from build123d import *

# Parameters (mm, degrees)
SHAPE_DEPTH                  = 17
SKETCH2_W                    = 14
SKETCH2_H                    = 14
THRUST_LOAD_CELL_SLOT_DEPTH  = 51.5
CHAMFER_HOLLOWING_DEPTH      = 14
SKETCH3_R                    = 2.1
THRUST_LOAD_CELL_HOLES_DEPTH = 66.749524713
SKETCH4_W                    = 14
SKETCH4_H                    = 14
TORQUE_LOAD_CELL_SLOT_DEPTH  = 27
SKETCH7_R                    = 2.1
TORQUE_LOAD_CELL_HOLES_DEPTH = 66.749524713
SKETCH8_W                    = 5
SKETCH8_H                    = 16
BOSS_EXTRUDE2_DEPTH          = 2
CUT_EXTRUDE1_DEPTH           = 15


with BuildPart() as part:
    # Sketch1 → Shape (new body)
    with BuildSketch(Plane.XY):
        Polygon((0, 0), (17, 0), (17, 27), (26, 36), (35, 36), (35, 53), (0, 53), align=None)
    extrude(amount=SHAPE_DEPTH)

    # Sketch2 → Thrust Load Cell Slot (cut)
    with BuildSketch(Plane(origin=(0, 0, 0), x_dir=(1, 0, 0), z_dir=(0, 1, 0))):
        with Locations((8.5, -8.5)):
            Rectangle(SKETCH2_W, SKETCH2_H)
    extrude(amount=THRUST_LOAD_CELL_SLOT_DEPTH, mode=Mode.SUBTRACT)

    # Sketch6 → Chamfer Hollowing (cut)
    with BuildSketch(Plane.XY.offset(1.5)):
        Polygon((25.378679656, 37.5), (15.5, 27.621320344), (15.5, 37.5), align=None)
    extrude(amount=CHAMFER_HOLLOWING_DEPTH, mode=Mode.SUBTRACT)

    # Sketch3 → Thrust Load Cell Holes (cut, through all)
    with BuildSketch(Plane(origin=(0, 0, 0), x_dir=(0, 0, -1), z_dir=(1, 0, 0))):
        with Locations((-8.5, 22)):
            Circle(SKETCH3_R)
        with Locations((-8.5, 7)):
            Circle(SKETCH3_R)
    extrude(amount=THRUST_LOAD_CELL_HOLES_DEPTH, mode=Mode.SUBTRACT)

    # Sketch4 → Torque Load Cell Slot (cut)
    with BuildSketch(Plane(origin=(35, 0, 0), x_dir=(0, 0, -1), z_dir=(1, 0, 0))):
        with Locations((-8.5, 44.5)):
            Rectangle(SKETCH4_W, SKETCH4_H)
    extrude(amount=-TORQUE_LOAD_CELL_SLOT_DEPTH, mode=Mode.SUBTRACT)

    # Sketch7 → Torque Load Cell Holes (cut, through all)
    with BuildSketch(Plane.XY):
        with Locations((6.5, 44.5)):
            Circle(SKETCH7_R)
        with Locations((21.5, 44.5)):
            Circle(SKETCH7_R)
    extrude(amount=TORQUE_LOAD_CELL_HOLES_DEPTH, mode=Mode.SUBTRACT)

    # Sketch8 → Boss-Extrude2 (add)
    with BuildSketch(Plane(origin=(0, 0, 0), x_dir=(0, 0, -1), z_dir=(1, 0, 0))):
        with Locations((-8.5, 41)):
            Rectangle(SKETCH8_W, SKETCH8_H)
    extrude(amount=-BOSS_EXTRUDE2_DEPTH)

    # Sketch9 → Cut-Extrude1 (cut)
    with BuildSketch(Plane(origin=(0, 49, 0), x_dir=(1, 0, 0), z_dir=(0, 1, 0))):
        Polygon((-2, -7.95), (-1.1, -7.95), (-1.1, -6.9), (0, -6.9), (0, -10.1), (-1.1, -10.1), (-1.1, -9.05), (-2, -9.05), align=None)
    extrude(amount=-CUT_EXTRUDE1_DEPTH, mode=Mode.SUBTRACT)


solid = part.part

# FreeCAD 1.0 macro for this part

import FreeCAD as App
import Part
import Sketcher
from FreeCAD import Vector
Q = App.Units.Quantity


def add_polygon(sketch, points):
    """Adds a closed chain of lines whose ends are joined by coincident constraints."""
    first, n = sketch.GeometryCount, len(points)
    for a, b in zip(points, points[1:] + points[:1]):
        sketch.addGeometry(Part.LineSegment(App.Vector(*a, 0), App.Vector(*b, 0)), False)
    for i in range(n):
        sketch.addConstraint(Sketcher.Constraint("Coincident", first + i, 2, first + (i + 1) % n, 1))

doc = App.newDocument("Part")
params = doc.addObject("Spreadsheet::Sheet", "Params")
for row, (alias, value) in enumerate([
    ("sketch1_width", "17 mm"),
    ("sketch1_width2", "9 mm"),
    ("sketch1_width3", "35 mm"),
    ("sketch1_height", "27 mm"),
    ("sketch1_height2", "53 mm"),
    ("pad1_length", "17 mm"),
    ("sketch2_width", "14 mm"),
    ("pocket1_length", "51.5 mm"),
    ("pocket2_length", "14 mm"),
    ("sketch4_diameter", "4.2 mm"),
    ("sketch5_width", "14 mm"),
    ("pocket4_length", "27 mm"),
    ("sketch6_diameter", "4.2 mm"),
    ("sketch7_width", "16 mm"),
    ("sketch7_height", "5 mm"),
    ("pad2_length", "2 mm"),
    ("sketch8_width", "0.9 mm"),
    ("sketch8_width2", "1.1 mm"),
    ("sketch8_height", "3.2 mm"),
    ("pocket6_length", "15 mm"),
], start=1):
    params.set(f"A{row}", alias)
    params.set(f"B{row}", "=" + value)
    params.setAlias(f"B{row}", alias)

body = doc.addObject("PartDesign::Body", "Body")

# Sketch on XY plane
sketch1 = doc.addObject("Sketcher::SketchObject", "Sketch")
body.addObject(sketch1)
sketch1.AttachmentSupport = (doc.XY_Plane, [""])
sketch1.MapMode = "FlatFace"
add_polygon(sketch1, [(0, 0), (17, 0), (17, 27), (26, 36), (35, 36), (35, 53), (0, 53)])  # lines 0-6
sketch1.addConstraint([
    Sketcher.Constraint("Horizontal", 0),
    Sketcher.Constraint("Vertical", 1),
    Sketcher.Constraint("Horizontal", 3),
    Sketcher.Constraint("Vertical", 4),
    Sketcher.Constraint("Horizontal", 5),
    Sketcher.Constraint("Vertical", 6),
    Sketcher.Constraint("Coincident", 6, 2, -1, 1),
    Sketcher.Constraint("Equal", 0, 4),
    Sketcher.Constraint("DistanceX", 0, 1, 0, 2, Q("17 mm")),
    Sketcher.Constraint("DistanceX", 3, 1, 3, 2, Q("9 mm")),
    Sketcher.Constraint("DistanceX", 5, 2, 5, 1, Q("35 mm")),
    Sketcher.Constraint("DistanceY", 1, 1, 1, 2, Q("27 mm")),
    Sketcher.Constraint("DistanceY", 6, 2, 6, 1, Q("53 mm")),
])
sketch1.setExpression("Constraints[15]", "Params.sketch1_width")
sketch1.setExpression("Constraints[16]", "Params.sketch1_width2")
sketch1.setExpression("Constraints[17]", "Params.sketch1_width3")
sketch1.setExpression("Constraints[18]", "Params.sketch1_height")
sketch1.setExpression("Constraints[19]", "Params.sketch1_height2")
pad1 = doc.addObject("PartDesign::Pad", "Pad")
body.addObject(pad1)
pad1.Profile = sketch1
pad1.setExpression("Length", "Params.pad1_length")

# Sketch on XZ plane
sketch2 = doc.addObject("Sketcher::SketchObject", "Sketch001")
body.addObject(sketch2)
sketch2.AttachmentSupport = (doc.XZ_Plane, [""])
sketch2.MapMode = "FlatFace"
add_polygon(sketch2, [(2, 2), (2, 16), (16, 16), (16, 2)])  # lines 0-3
sketch2.addConstraint([
    Sketcher.Constraint("Vertical", 0),
    Sketcher.Constraint("Horizontal", 1),
    Sketcher.Constraint("Vertical", 2),
    Sketcher.Constraint("Horizontal", 3),
    Sketcher.Constraint("Equal", 3, 0),
    Sketcher.Constraint("DistanceX", 1, 1, 1, 2, Q("14 mm")),
    Sketcher.Constraint("DistanceX", -1, 1, 0, 2, Q("1.5 mm")),
    Sketcher.Constraint("DistanceY", -1, 1, 0, 2, Q("15.5 mm")),
])
sketch2.setExpression("Constraints[9]", "Params.sketch2_width")
pocket1 = doc.addObject("PartDesign::Pocket", "Pocket")
body.addObject(pocket1)
pocket1.Profile = sketch2
pocket1.setExpression("Length", "Params.pocket1_length")

# Sketch on XY plane
sketch3 = doc.addObject("Sketcher::SketchObject", "Sketch002")
body.addObject(sketch3)
sketch3.AttachmentSupport = (doc.XY_Plane, [""])
sketch3.MapMode = "FlatFace"
sketch3.AttachmentOffset = App.Placement(Vector(0, 0, 1.5), App.Rotation())
add_polygon(sketch3, [(16, 28), (25, 38), (16, 38)])  # lines 0-2
sketch3.addConstraint([
    Sketcher.Constraint("Horizontal", 1),
    Sketcher.Constraint("Vertical", 2),
    Sketcher.Constraint("Equal", 1, 2),
    Sketcher.Constraint("DistanceY", -1, 1, 0, 2, Q("37.5 mm")),
    Sketcher.Constraint("DistanceX", -1, 1, 1, 2, Q("15.5 mm")),
    Sketcher.Constraint("DistanceX", 1, 2, 1, 1, Q("9.87868 mm")),
])
pocket2 = doc.addObject("PartDesign::Pocket", "Pocket001")
body.addObject(pocket2)
pocket2.Profile = sketch3
pocket2.setExpression("Length", "Params.pocket2_length")
pocket2.Reversed = True

# Sketch on YZ plane
sketch4 = doc.addObject("Sketcher::SketchObject", "Sketch003")
body.addObject(sketch4)
sketch4.AttachmentSupport = (doc.YZ_Plane, [""])
sketch4.MapMode = "FlatFace"
sketch4.addGeometry([
    Part.Circle(Vector(22, 8.5, 0), Vector(0, 0, 1), 2.1),
    Part.Circle(Vector(7, 8.5, 0), Vector(0, 0, 1), 2.1),
], False)
sketch4.addConstraint([
    Sketcher.Constraint("Equal", 0, 1),
    Sketcher.Constraint("Horizontal", 0, 3, 1, 3),
    Sketcher.Constraint("Diameter", 0, Q("4.2 mm")),
    Sketcher.Constraint("DistanceX", -1, 1, 0, 3, Q("22 mm")),
    Sketcher.Constraint("DistanceX", -1, 1, 1, 3, Q("7 mm")),
    Sketcher.Constraint("DistanceY", -1, 1, 0, 3, Q("8.5 mm")),
])
sketch4.setExpression("Constraints[2]", "Params.sketch4_diameter")
pocket3 = doc.addObject("PartDesign::Pocket", "Pocket002")
body.addObject(pocket3)
pocket3.Profile = sketch4
pocket3.Type = "ThroughAll"
pocket3.Reversed = True

# Sketch on YZ plane
sketch5 = doc.addObject("Sketcher::SketchObject", "Sketch004")
body.addObject(sketch5)
sketch5.AttachmentSupport = (doc.YZ_Plane, [""])
sketch5.MapMode = "FlatFace"
sketch5.AttachmentOffset = App.Placement(Vector(0, 0, 35), App.Rotation())
add_polygon(sketch5, [(52, 16), (38, 16), (38, 2), (52, 2)])  # lines 0-3
sketch5.addConstraint([
    Sketcher.Constraint("Horizontal", 0),
    Sketcher.Constraint("Vertical", 1),
    Sketcher.Constraint("Horizontal", 2),
    Sketcher.Constraint("Vertical", 3),
    Sketcher.Constraint("Equal", 2, 1),
    Sketcher.Constraint("DistanceX", 0, 2, 0, 1, Q("14 mm")),
    Sketcher.Constraint("DistanceX", -1, 1, 0, 2, Q("37.5 mm")),
    Sketcher.Constraint("DistanceY", -1, 1, 0, 2, Q("15.5 mm")),
])
sketch5.setExpression("Constraints[9]", "Params.sketch5_width")
pocket4 = doc.addObject("PartDesign::Pocket", "Pocket003")
body.addObject(pocket4)
pocket4.Profile = sketch5
pocket4.setExpression("Length", "Params.pocket4_length")

# Sketch on XY plane
sketch6 = doc.addObject("Sketcher::SketchObject", "Sketch005")
body.addObject(sketch6)
sketch6.AttachmentSupport = (doc.XY_Plane, [""])
sketch6.MapMode = "FlatFace"
sketch6.addGeometry([
    Part.Circle(Vector(6.5, 44.5, 0), Vector(0, 0, 1), 2.1),
    Part.Circle(Vector(21.5, 44.5, 0), Vector(0, 0, 1), 2.1),
], False)
sketch6.addConstraint([
    Sketcher.Constraint("Equal", 0, 1),
    Sketcher.Constraint("Horizontal", 0, 3, 1, 3),
    Sketcher.Constraint("Diameter", 0, Q("4.2 mm")),
    Sketcher.Constraint("DistanceX", 0, 3, 1, 3, Q("15 mm")),
    Sketcher.Constraint("DistanceX", -1, 1, 0, 3, Q("6.5 mm")),
    Sketcher.Constraint("DistanceY", -1, 1, 0, 3, Q("44.5 mm")),
])
sketch6.setExpression("Constraints[2]", "Params.sketch6_diameter")
pocket5 = doc.addObject("PartDesign::Pocket", "Pocket004")
body.addObject(pocket5)
pocket5.Profile = sketch6
pocket5.Type = "ThroughAll"
pocket5.Reversed = True

# Sketch on YZ plane
sketch7 = doc.addObject("Sketcher::SketchObject", "Sketch006")
body.addObject(sketch7)
sketch7.AttachmentSupport = (doc.YZ_Plane, [""])
sketch7.MapMode = "FlatFace"
add_polygon(sketch7, [(49, 11), (33, 11), (33, 6), (49, 6)])  # lines 0-3
sketch7.addConstraint([
    Sketcher.Constraint("Horizontal", 0),
    Sketcher.Constraint("Vertical", 1),
    Sketcher.Constraint("Horizontal", 2),
    Sketcher.Constraint("Vertical", 3),
    Sketcher.Constraint("DistanceX", 0, 2, 0, 1, Q("16 mm")),
    Sketcher.Constraint("DistanceY", 1, 2, 1, 1, Q("5 mm")),
    Sketcher.Constraint("DistanceX", -1, 1, 0, 2, Q("33 mm")),
    Sketcher.Constraint("DistanceY", -1, 1, 0, 2, Q("11 mm")),
])
sketch7.setExpression("Constraints[8]", "Params.sketch7_width")
sketch7.setExpression("Constraints[9]", "Params.sketch7_height")
pad2 = doc.addObject("PartDesign::Pad", "Pad001")
body.addObject(pad2)
pad2.Profile = sketch7
pad2.setExpression("Length", "Params.pad2_length")
pad2.Reversed = True

# Sketch on XZ plane
sketch8 = doc.addObject("Sketcher::SketchObject", "Sketch007")
body.addObject(sketch8)
sketch8.AttachmentSupport = (doc.XZ_Plane, [""])
sketch8.MapMode = "FlatFace"
sketch8.AttachmentOffset = App.Placement(Vector(0, 0, -49), App.Rotation())
add_polygon(sketch8, [(-1.1, 8), (-2, 8), (-2, 9.1), (-1.1, 9.1), (-1.1, 10.1), (0, 10.1), (0, 6.9), (-1.1, 6.9)])  # lines 0-7
sketch8.addConstraint([
    Sketcher.Constraint("Horizontal", 0),
    Sketcher.Constraint("Vertical", 1),
    Sketcher.Constraint("Horizontal", 2),
    Sketcher.Constraint("Vertical", 3),
    Sketcher.Constraint("Horizontal", 4),
    Sketcher.Constraint("Vertical", 5),
    Sketcher.Constraint("Horizontal", 6),
    Sketcher.Constraint("Vertical", 7),
    Sketcher.Constraint("PointOnObject", 4, 2, -2),
    Sketcher.Constraint("Vertical", 3, 2, 6, 2),
    Sketcher.Constraint("Equal", 6, 1),
    Sketcher.Constraint("Equal", 3, 7),
    Sketcher.Constraint("DistanceX", 0, 2, 0, 1, Q("0.9 mm")),
    Sketcher.Constraint("DistanceX", 4, 1, 4, 2, Q("1.1 mm")),
    Sketcher.Constraint("DistanceY", 5, 2, 5, 1, Q("3.2 mm")),
    Sketcher.Constraint("DistanceY", -1, 1, 3, 2, Q("10.1 mm")),
])
sketch8.setExpression("Constraints[20]", "Params.sketch8_width")
sketch8.setExpression("Constraints[21]", "Params.sketch8_width2")
sketch8.setExpression("Constraints[22]", "Params.sketch8_height")
pocket6 = doc.addObject("PartDesign::Pocket", "Pocket005")
body.addObject(pocket6)
pocket6.Profile = sketch8
pocket6.setExpression("Length", "Params.pocket6_length")
pocket6.Reversed = True

doc.recompute()
